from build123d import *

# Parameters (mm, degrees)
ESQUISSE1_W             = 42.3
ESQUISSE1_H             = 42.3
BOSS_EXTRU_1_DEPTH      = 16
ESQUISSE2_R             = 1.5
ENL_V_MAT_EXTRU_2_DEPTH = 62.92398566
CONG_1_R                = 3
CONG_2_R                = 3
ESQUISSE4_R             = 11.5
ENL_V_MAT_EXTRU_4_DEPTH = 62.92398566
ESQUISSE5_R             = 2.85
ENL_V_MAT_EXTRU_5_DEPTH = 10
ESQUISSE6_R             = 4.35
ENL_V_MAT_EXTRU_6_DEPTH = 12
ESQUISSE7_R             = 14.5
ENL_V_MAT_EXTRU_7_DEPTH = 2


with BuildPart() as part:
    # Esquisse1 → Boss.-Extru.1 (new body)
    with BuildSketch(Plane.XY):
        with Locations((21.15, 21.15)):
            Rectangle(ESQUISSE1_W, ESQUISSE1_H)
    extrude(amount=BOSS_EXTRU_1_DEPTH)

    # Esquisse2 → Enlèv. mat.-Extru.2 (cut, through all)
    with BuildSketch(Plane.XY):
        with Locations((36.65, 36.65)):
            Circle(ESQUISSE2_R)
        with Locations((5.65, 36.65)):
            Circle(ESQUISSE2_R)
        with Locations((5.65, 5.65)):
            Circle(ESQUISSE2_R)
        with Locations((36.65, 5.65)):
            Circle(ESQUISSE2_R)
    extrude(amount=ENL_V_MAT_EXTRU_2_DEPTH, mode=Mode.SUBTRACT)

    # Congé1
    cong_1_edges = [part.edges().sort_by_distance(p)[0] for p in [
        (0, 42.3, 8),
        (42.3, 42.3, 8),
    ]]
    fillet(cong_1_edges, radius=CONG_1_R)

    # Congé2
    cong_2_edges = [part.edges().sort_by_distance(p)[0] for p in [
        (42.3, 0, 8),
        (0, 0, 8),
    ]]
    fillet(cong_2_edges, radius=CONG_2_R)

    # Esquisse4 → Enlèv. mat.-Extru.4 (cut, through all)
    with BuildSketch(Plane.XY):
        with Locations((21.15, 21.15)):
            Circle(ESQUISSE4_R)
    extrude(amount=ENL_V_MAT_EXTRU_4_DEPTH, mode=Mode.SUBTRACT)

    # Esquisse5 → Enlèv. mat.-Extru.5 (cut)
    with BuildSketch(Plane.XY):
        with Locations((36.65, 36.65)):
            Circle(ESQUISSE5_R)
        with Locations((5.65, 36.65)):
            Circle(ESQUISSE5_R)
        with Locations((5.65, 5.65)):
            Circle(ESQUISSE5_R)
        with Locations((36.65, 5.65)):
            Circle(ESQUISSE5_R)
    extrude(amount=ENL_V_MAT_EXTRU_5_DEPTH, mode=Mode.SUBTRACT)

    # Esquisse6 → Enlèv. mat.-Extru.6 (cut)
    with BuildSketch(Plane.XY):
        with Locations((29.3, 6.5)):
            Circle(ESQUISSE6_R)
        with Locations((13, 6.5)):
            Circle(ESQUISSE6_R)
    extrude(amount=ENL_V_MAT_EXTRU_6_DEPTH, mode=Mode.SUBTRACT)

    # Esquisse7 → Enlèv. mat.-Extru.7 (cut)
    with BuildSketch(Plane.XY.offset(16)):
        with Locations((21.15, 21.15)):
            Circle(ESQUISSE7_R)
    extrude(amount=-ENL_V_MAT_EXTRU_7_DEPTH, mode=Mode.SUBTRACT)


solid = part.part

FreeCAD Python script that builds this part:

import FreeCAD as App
import Part
import Sketcher

V = App.Vector


def edges_at(feature, points):
    """Names of the edges that pass closest to the given points."""
    edges = feature.Shape.Edges
    near = lambda p: min(range(len(edges)), key=lambda i: edges[i].distToShape(Part.Vertex(*p))[0])
    return sorted({f"Edge{near(p) + 1}" for p in points})


def add_polygon(sketch, points):
    """Adds a closed chain of lines whose ends are joined by coincident constraints."""
    first, n = sketch.GeometryCount, len(points)
    for a, b in zip(points, points[1:] + points[:1]):
        sketch.addGeometry(Part.LineSegment(App.Vector(*a, 0), App.Vector(*b, 0)), False)
    for i in range(n):
        sketch.addConstraint(Sketcher.Constraint("Coincident", first + i, 2, first + (i + 1) % n, 1))

doc = App.newDocument("Part")
body = doc.addObject("PartDesign::Body", "Body")

# Sketch on XY plane
sketch1 = body.newObject("Sketcher::SketchObject", "Sketch")
sketch1.AttachmentSupport = (doc.getObject("XY_Plane"), [""])
sketch1.MapMode = "FlatFace"
add_polygon(sketch1, [(0, 42.3), (0, 0), (42.3, 0), (42.3, 42.3)])  # lines 0-3
sketch1.addConstraint([
    Sketcher.Constraint("Vertical", 0),
    Sketcher.Constraint("Horizontal", 1),
    Sketcher.Constraint("Vertical", 2),
    Sketcher.Constraint("Horizontal", 3),
    Sketcher.Constraint("Coincident", 0, 2, -1, 1),
    Sketcher.Constraint("Equal", 3, 0),
    Sketcher.Constraint("DistanceX", 1, 1, 1, 2, 42.3),
])
pad1 = body.newObject("PartDesign::Pad", "Pad")
pad1.Profile = sketch1
pad1.Length = 16

# Sketch on XY plane
sketch2 = body.newObject("Sketcher::SketchObject", "Sketch001")
sketch2.AttachmentSupport = (doc.getObject("XY_Plane"), [""])
sketch2.MapMode = "FlatFace"
sketch2.addGeometry([
    Part.Circle(V(36.65, 36.65, 0), V(0, 0, 1), 1.5),
    Part.Circle(V(5.65, 36.65, 0), V(0, 0, 1), 1.5),
    Part.Circle(V(5.65, 5.65, 0), V(0, 0, 1), 1.5),
    Part.Circle(V(36.65, 5.65, 0), V(0, 0, 1), 1.5),
], False)
sketch2.addConstraint([
    Sketcher.Constraint("Equal", 0, 1),
    Sketcher.Constraint("Equal", 1, 2),
    Sketcher.Constraint("Equal", 2, 3),
    Sketcher.Constraint("Horizontal", 0, 3, 1, 3),
    Sketcher.Constraint("Horizontal", 2, 3, 3, 3),
    Sketcher.Constraint("Vertical", 1, 3, 2, 3),
    Sketcher.Constraint("Vertical", 0, 3, 3, 3),
    Sketcher.Constraint("Diameter", 0, 3.0),
    Sketcher.Constraint("DistanceX", 1, 3, 0, 3, 31.0),
    Sketcher.Constraint("DistanceY", 2, 3, 1, 3, 31.0),
    Sketcher.Constraint("DistanceX", -1, 1, 0, 3, 36.65),
    Sketcher.Constraint("DistanceY", -1, 1, 0, 3, 36.65),
])
pocket1 = body.newObject("PartDesign::Pocket", "Pocket")
pocket1.Profile = sketch2
pocket1.Type = "ThroughAll"
pocket1.Reversed = True
doc.recompute()

fillet = body.newObject("PartDesign::Fillet", "Fillet")
fillet.Base = (pocket1, edges_at(pocket1, [(0, 42.3, 8), (42.3, 42.3, 8)]))
fillet.Radius = 3
doc.recompute()

fillet2 = body.newObject("PartDesign::Fillet", "Fillet001")
fillet2.Base = (fillet, edges_at(fillet, [(42.3, 0, 8), (0, 0, 8)]))
fillet2.Radius = 3

# Sketch on XY plane
sketch3 = body.newObject("Sketcher::SketchObject", "Sketch002")
sketch3.AttachmentSupport = (doc.getObject("XY_Plane"), [""])
sketch3.MapMode = "FlatFace"
sketch3.addGeometry(Part.Circle(V(21.15, 21.15, 0), V(0, 0, 1), 11.5), False)
sketch3.addConstraint([
    Sketcher.Constraint("Diameter", 0, 23.0),
    Sketcher.Constraint("DistanceX", -1, 1, 0, 3, 21.15),
    Sketcher.Constraint("DistanceY", -1, 1, 0, 3, 21.15),
])
pocket2 = body.newObject("PartDesign::Pocket", "Pocket001")
pocket2.Profile = sketch3
pocket2.Type = "ThroughAll"
pocket2.Reversed = True

# Sketch on XY plane
sketch4 = body.newObject("Sketcher::SketchObject", "Sketch003")
sketch4.AttachmentSupport = (doc.getObject("XY_Plane"), [""])
sketch4.MapMode = "FlatFace"
sketch4.addGeometry([
    Part.Circle(V(36.65, 36.65, 0), V(0, 0, 1), 2.85),
    Part.Circle(V(5.65, 36.65, 0), V(0, 0, 1), 2.85),
    Part.Circle(V(5.65, 5.65, 0), V(0, 0, 1), 2.85),
    Part.Circle(V(36.65, 5.65, 0), V(0, 0, 1), 2.85),
], False)
sketch4.addConstraint([
    Sketcher.Constraint("Equal", 0, 1),
    Sketcher.Constraint("Equal", 1, 2),
    Sketcher.Constraint("Equal", 2, 3),
    Sketcher.Constraint("Horizontal", 0, 3, 1, 3),
    Sketcher.Constraint("Horizontal", 2, 3, 3, 3),
    Sketcher.Constraint("Vertical", 1, 3, 2, 3),
    Sketcher.Constraint("Vertical", 0, 3, 3, 3),
    Sketcher.Constraint("Diameter", 0, 5.7),
    Sketcher.Constraint("DistanceX", 1, 3, 0, 3, 31.0),
    Sketcher.Constraint("DistanceY", 2, 3, 1, 3, 31.0),
    Sketcher.Constraint("DistanceX", -1, 1, 0, 3, 36.65),
    Sketcher.Constraint("DistanceY", -1, 1, 0, 3, 36.65),
])
pocket3 = body.newObject("PartDesign::Pocket", "Pocket002")
pocket3.Profile = sketch4
pocket3.Length = 10
pocket3.Reversed = True

# Sketch on XY plane
sketch5 = body.newObject("Sketcher::SketchObject", "Sketch004")
sketch5.AttachmentSupport = (doc.getObject("XY_Plane"), [""])
sketch5.MapMode = "FlatFace"
sketch5.addGeometry([
    Part.Circle(V(29.3, 6.5, 0), V(0, 0, 1), 4.35),
    Part.Circle(V(13, 6.5, 0), V(0, 0, 1), 4.35),
], False)
sketch5.addConstraint([
    Sketcher.Constraint("Equal", 0, 1),
    Sketcher.Constraint("Horizontal", 0, 3, 1, 3),
    Sketcher.Constraint("Diameter", 0, 8.7),
    Sketcher.Constraint("DistanceX", -1, 1, 1, 3, 13.0),
    Sketcher.Constraint("DistanceX", -1, 1, 0, 3, 29.3),
    Sketcher.Constraint("DistanceY", -1, 1, 0, 3, 6.5),
])
pocket4 = body.newObject("PartDesign::Pocket", "Pocket003")
pocket4.Profile = sketch5
pocket4.Length = 12
pocket4.Reversed = True

# Sketch on XY plane
sketch6 = body.newObject("Sketcher::SketchObject", "Sketch005")
sketch6.AttachmentSupport = (doc.getObject("XY_Plane"), [""])
sketch6.MapMode = "FlatFace"
sketch6.AttachmentOffset = App.Placement(V(0, 0, 16), App.Rotation())
sketch6.addGeometry(Part.Circle(V(21.15, 21.15, 0), V(0, 0, 1), 14.5), False)
sketch6.addConstraint([
    Sketcher.Constraint("Diameter", 0, 29.0),
    Sketcher.Constraint("DistanceX", -1, 1, 0, 3, 21.15),
    Sketcher.Constraint("DistanceY", -1, 1, 0, 3, 21.15),
])
pocket5 = body.newObject("PartDesign::Pocket", "Pocket004")
pocket5.Profile = sketch6
pocket5.Length = 2

doc.recompute()
